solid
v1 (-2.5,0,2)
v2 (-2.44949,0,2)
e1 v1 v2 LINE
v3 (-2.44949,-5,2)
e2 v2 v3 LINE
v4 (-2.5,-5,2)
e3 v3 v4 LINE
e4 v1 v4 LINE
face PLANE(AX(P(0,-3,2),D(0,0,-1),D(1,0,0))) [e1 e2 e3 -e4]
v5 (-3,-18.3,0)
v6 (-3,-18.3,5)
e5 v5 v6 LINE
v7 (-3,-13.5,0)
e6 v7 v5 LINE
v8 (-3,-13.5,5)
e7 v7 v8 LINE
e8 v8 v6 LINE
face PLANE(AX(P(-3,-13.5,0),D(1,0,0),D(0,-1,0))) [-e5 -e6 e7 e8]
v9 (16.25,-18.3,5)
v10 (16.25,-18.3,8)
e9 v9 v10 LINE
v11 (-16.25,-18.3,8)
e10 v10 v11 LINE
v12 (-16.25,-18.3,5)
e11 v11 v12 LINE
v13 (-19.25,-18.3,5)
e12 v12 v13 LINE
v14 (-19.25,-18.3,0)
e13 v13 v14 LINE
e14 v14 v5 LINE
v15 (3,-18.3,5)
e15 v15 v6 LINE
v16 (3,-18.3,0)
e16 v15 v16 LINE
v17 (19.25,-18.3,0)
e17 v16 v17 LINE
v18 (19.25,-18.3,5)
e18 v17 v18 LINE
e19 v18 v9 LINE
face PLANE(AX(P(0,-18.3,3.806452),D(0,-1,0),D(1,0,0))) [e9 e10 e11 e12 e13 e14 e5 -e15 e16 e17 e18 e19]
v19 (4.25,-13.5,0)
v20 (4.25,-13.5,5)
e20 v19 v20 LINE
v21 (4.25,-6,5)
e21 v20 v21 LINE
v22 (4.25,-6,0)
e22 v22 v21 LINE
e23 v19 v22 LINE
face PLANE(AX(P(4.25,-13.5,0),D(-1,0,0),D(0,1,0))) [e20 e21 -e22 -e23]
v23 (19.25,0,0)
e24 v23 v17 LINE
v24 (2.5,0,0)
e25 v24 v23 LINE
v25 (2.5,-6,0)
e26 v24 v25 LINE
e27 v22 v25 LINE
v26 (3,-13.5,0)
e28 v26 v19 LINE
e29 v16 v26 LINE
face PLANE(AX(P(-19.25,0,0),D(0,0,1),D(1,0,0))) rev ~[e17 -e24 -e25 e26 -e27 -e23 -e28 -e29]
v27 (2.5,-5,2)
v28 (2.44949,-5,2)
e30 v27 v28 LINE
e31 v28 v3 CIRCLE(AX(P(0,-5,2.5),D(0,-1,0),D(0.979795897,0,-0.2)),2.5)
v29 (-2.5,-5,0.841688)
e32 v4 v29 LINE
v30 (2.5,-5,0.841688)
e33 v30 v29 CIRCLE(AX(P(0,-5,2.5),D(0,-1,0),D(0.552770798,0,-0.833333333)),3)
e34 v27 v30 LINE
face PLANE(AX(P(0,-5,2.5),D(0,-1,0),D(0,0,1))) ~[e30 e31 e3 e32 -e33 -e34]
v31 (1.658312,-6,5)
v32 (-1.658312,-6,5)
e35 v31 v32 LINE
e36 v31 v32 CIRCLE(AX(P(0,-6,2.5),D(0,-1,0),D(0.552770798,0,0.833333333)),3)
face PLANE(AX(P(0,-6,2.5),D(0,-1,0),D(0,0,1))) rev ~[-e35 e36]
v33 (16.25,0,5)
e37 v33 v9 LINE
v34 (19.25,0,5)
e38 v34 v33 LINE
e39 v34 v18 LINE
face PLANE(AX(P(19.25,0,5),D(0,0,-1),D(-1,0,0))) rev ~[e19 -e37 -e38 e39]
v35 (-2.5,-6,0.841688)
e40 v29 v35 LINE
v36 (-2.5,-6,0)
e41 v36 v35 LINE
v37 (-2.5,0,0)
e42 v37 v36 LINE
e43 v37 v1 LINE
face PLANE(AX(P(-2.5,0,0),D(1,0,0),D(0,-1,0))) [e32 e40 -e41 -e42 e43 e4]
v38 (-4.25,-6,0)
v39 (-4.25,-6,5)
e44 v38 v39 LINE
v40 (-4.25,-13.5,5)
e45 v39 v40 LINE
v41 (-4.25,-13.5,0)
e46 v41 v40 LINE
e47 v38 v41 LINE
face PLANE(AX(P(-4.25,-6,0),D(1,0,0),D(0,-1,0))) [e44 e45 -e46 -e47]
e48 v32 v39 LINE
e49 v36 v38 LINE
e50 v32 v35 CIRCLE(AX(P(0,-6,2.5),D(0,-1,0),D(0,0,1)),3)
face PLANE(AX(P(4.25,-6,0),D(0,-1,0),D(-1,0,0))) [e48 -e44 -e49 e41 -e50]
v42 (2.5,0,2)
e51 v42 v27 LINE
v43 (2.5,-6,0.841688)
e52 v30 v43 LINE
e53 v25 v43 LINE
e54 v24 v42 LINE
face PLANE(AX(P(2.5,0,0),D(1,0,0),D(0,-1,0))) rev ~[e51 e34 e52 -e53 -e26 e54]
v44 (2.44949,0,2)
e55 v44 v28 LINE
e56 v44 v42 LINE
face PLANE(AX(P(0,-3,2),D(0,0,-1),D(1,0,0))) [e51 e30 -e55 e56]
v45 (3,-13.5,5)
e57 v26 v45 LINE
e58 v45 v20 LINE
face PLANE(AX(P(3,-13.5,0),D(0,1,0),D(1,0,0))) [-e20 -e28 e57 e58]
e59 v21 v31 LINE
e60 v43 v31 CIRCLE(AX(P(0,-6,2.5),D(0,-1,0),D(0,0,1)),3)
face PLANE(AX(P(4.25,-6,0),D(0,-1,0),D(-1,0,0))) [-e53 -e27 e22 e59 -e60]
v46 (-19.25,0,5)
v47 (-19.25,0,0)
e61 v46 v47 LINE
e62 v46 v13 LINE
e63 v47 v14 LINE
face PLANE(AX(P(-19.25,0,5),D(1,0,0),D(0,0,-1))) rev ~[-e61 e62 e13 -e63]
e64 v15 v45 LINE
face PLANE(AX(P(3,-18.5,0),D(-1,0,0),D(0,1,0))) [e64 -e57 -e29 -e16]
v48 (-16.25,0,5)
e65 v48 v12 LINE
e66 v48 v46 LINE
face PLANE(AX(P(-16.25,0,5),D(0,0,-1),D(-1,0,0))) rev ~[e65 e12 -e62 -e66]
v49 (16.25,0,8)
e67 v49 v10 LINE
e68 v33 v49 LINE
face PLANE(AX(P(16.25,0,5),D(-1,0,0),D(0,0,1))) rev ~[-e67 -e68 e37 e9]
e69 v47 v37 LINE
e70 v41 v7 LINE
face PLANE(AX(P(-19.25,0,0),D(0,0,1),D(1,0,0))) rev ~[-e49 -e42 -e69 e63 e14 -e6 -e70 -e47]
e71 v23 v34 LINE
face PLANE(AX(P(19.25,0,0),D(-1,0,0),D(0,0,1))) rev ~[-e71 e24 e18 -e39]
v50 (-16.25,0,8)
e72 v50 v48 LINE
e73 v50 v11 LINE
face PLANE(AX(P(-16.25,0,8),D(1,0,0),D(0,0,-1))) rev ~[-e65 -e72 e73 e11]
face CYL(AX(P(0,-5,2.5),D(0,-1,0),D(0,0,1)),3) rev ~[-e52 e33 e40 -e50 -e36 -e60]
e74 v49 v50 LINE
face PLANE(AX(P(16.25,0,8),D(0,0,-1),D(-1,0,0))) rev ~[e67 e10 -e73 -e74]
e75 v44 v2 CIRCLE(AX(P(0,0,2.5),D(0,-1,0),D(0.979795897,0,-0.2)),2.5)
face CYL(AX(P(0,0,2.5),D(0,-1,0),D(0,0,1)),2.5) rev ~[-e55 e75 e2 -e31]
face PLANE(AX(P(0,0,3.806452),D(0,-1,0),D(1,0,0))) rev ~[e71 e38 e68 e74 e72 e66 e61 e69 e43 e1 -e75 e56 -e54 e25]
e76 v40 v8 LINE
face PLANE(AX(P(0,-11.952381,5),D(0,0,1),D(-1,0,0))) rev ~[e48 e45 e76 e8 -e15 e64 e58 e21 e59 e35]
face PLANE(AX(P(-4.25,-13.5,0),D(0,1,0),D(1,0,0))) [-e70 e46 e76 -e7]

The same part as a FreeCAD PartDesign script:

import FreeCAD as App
import Part
import Sketcher
from FreeCAD import Vector
Q = App.Units.Quantity


def add_polygon(sketch, points):
    """Adds a closed chain of lines whose ends are joined by coincident constraints."""
    first, n = sketch.GeometryCount, len(points)
    for a, b in zip(points, points[1:] + points[:1]):
        sketch.addGeometry(Part.LineSegment(App.Vector(*a, 0), App.Vector(*b, 0)), False)
    for i in range(n):
        sketch.addConstraint(Sketcher.Constraint("Coincident", first + i, 2, first + (i + 1) % n, 1))

doc = App.newDocument("Part")
body = doc.addObject("PartDesign::Body", "Body")

sketch1 = body.newObject("Sketcher::SketchObject", "Sketch")
sketch1.AttachmentSupport = (doc.getObject("XZ_Plane"), [""])
sketch1.MapMode = "FlatFace"
add_polygon(sketch1, [(-19.2, 0), (19.2, 0), (19.2, 5), (16.2, 5), (16.2, 8), (-16.2, 8), (-16.2, 5), (-19.2, 5)])
sketch1.addConstraint([
    Sketcher.Constraint("Horizontal", 0),
    Sketcher.Constraint("Vertical", 1),
    Sketcher.Constraint("Horizontal", 2),
    Sketcher.Constraint("Vertical", 3),
    Sketcher.Constraint("Horizontal", 4),
    Sketcher.Constraint("Vertical", 5),
    Sketcher.Constraint("Horizontal", 6),
    Sketcher.Constraint("Vertical", 7),
    Sketcher.Constraint("Symmetric", 0, 2, 7, 2, -1, 1),
    Sketcher.Constraint("Symmetric", 2, 2, 5, 2, -2),
    Sketcher.Constraint("Equal", 6, 3),
    Sketcher.Constraint("DistanceX", 2, 2, 2, 1, Q("3 mm")),
    Sketcher.Constraint("DistanceY", 1, 1, 1, 2, Q("5 mm")),
    Sketcher.Constraint("DistanceX", 0, 1, 0, 2, Q("38.5 mm")),
])
pad1 = body.newObject("PartDesign::Pad", "Pad")
pad1.Profile = sketch1
pad1.Length = 18.3

sketch2 = body.newObject("Sketcher::SketchObject", "Sketch001")
sketch2.AttachmentSupport = (doc.getObject("XY_Plane"), [""])
sketch2.MapMode = "FlatFace"
add_polygon(sketch2, [(4.2, -6), (4.2, -13.5), (3, -13.5), (3, -18.5), (-3, -18.5), (-3, -13.5), (-4.2, -13.5), (-4.2, -6)])
sketch2.addConstraint([
    Sketcher.Constraint("Vertical", 0),
    Sketcher.Constraint("Horizontal", 1),
    Sketcher.Constraint("Vertical", 2),
    Sketcher.Constraint("Horizontal", 3),
    Sketcher.Constraint("Vertical", 4),
    Sketcher.Constraint("Horizontal", 5),
    Sketcher.Constraint("Vertical", 6),
    Sketcher.Constraint("Horizontal", 7),
    Sketcher.Constraint("Symmetric", 1, 2, 4, 2, -2),
    Sketcher.Constraint("Equal", 1, 5),
    Sketcher.Constraint("DistanceX", 3, 2, 3, 1, Q("6 mm")),
    Sketcher.Constraint("DistanceY", 2, 2, 2, 1, Q("5 mm")),
    Sketcher.Constraint("DistanceX", 7, 1, 7, 2, Q("8.5 mm")),
    Sketcher.Constraint("DistanceY", 0, 2, 0, 1, Q("7.5 mm")),
    Sketcher.Constraint("DistanceY", 6, 2, -1, 1, Q("6 mm")),
])
pocket1 = body.newObject("PartDesign::Pocket", "Pocket")
pocket1.Profile = sketch2
pocket1.Length = 5
pocket1.Reversed = True

sketch3 = body.newObject("Sketcher::SketchObject", "Sketch002")
sketch3.AttachmentSupport = (doc.getObject("YZ_Plane"), [""])
sketch3.MapMode = "FlatFace"
add_polygon(sketch3, [(0, 2.5), (0, 5), (-5, 5), (-5, 5.5), (-6, 5.5), (-6, 2.5)])
sketch3.addGeometry(Part.LineSegment(Vector(0, 2.5, 0), Vector(-6, 2.5, 0)), True)
sketch3.addConstraint([
    Sketcher.Constraint("Vertical", 0),
    Sketcher.Constraint("Horizontal", 1),
    Sketcher.Constraint("Vertical", 2),
    Sketcher.Constraint("Horizontal", 3),
    Sketcher.Constraint("Vertical", 4),
    Sketcher.Constraint("Horizontal", 5),
    Sketcher.Constraint("Horizontal", 6),
    Sketcher.Constraint("Coincident", 6, 1, 5, 2),
    Sketcher.Constraint("PointOnObject", 0, 2, -2),
    Sketcher.Constraint("Vertical", 3, 2, 6, 2),
    Sketcher.Constraint("DistanceX", 1, 2, 1, 1, Q("5 mm")),
    Sketcher.Constraint("DistanceX", 3, 2, 3, 1, Q("1 mm")),
    Sketcher.Constraint("DistanceY", 4, 2, 4, 1, Q("3 mm")),
    Sketcher.Constraint("DistanceY", 0, 1, 0, 2, Q("2.5 mm")),
    Sketcher.Constraint("DistanceY", -1, 1, 0, 2, Q("5 mm")),
])
groove = body.newObject("PartDesign::Groove", "Groove")
groove.Profile = sketch3
groove.ReferenceAxis = (sketch3, ["Axis0"])
groove.Angle = 360

sketch4 = body.newObject("Sketcher::SketchObject", "Sketch003")
sketch4.AttachmentSupport = (doc.getObject("XY_Plane"), [""])
sketch4.MapMode = "FlatFace"
add_polygon(sketch4, [(-2, -6), (-2, 0), (2, 0), (2, -6)])
sketch4.addConstraint([
    Sketcher.Constraint("Vertical", 0),
    Sketcher.Constraint("Horizontal", 1),
    Sketcher.Constraint("Vertical", 2),
    Sketcher.Constraint("Horizontal", 3),
    Sketcher.Constraint("Symmetric", 0, 2, 1, 2, -1, 1),
    Sketcher.Constraint("DistanceX", 1, 1, 1, 2, Q("5 mm")),
    Sketcher.Constraint("DistanceY", 0, 1, 0, 2, Q("6 mm")),
])
pocket2 = body.newObject("PartDesign::Pocket", "Pocket001")
pocket2.Profile = sketch4
pocket2.Length = 2
pocket2.Reversed = True

doc.recompute()
